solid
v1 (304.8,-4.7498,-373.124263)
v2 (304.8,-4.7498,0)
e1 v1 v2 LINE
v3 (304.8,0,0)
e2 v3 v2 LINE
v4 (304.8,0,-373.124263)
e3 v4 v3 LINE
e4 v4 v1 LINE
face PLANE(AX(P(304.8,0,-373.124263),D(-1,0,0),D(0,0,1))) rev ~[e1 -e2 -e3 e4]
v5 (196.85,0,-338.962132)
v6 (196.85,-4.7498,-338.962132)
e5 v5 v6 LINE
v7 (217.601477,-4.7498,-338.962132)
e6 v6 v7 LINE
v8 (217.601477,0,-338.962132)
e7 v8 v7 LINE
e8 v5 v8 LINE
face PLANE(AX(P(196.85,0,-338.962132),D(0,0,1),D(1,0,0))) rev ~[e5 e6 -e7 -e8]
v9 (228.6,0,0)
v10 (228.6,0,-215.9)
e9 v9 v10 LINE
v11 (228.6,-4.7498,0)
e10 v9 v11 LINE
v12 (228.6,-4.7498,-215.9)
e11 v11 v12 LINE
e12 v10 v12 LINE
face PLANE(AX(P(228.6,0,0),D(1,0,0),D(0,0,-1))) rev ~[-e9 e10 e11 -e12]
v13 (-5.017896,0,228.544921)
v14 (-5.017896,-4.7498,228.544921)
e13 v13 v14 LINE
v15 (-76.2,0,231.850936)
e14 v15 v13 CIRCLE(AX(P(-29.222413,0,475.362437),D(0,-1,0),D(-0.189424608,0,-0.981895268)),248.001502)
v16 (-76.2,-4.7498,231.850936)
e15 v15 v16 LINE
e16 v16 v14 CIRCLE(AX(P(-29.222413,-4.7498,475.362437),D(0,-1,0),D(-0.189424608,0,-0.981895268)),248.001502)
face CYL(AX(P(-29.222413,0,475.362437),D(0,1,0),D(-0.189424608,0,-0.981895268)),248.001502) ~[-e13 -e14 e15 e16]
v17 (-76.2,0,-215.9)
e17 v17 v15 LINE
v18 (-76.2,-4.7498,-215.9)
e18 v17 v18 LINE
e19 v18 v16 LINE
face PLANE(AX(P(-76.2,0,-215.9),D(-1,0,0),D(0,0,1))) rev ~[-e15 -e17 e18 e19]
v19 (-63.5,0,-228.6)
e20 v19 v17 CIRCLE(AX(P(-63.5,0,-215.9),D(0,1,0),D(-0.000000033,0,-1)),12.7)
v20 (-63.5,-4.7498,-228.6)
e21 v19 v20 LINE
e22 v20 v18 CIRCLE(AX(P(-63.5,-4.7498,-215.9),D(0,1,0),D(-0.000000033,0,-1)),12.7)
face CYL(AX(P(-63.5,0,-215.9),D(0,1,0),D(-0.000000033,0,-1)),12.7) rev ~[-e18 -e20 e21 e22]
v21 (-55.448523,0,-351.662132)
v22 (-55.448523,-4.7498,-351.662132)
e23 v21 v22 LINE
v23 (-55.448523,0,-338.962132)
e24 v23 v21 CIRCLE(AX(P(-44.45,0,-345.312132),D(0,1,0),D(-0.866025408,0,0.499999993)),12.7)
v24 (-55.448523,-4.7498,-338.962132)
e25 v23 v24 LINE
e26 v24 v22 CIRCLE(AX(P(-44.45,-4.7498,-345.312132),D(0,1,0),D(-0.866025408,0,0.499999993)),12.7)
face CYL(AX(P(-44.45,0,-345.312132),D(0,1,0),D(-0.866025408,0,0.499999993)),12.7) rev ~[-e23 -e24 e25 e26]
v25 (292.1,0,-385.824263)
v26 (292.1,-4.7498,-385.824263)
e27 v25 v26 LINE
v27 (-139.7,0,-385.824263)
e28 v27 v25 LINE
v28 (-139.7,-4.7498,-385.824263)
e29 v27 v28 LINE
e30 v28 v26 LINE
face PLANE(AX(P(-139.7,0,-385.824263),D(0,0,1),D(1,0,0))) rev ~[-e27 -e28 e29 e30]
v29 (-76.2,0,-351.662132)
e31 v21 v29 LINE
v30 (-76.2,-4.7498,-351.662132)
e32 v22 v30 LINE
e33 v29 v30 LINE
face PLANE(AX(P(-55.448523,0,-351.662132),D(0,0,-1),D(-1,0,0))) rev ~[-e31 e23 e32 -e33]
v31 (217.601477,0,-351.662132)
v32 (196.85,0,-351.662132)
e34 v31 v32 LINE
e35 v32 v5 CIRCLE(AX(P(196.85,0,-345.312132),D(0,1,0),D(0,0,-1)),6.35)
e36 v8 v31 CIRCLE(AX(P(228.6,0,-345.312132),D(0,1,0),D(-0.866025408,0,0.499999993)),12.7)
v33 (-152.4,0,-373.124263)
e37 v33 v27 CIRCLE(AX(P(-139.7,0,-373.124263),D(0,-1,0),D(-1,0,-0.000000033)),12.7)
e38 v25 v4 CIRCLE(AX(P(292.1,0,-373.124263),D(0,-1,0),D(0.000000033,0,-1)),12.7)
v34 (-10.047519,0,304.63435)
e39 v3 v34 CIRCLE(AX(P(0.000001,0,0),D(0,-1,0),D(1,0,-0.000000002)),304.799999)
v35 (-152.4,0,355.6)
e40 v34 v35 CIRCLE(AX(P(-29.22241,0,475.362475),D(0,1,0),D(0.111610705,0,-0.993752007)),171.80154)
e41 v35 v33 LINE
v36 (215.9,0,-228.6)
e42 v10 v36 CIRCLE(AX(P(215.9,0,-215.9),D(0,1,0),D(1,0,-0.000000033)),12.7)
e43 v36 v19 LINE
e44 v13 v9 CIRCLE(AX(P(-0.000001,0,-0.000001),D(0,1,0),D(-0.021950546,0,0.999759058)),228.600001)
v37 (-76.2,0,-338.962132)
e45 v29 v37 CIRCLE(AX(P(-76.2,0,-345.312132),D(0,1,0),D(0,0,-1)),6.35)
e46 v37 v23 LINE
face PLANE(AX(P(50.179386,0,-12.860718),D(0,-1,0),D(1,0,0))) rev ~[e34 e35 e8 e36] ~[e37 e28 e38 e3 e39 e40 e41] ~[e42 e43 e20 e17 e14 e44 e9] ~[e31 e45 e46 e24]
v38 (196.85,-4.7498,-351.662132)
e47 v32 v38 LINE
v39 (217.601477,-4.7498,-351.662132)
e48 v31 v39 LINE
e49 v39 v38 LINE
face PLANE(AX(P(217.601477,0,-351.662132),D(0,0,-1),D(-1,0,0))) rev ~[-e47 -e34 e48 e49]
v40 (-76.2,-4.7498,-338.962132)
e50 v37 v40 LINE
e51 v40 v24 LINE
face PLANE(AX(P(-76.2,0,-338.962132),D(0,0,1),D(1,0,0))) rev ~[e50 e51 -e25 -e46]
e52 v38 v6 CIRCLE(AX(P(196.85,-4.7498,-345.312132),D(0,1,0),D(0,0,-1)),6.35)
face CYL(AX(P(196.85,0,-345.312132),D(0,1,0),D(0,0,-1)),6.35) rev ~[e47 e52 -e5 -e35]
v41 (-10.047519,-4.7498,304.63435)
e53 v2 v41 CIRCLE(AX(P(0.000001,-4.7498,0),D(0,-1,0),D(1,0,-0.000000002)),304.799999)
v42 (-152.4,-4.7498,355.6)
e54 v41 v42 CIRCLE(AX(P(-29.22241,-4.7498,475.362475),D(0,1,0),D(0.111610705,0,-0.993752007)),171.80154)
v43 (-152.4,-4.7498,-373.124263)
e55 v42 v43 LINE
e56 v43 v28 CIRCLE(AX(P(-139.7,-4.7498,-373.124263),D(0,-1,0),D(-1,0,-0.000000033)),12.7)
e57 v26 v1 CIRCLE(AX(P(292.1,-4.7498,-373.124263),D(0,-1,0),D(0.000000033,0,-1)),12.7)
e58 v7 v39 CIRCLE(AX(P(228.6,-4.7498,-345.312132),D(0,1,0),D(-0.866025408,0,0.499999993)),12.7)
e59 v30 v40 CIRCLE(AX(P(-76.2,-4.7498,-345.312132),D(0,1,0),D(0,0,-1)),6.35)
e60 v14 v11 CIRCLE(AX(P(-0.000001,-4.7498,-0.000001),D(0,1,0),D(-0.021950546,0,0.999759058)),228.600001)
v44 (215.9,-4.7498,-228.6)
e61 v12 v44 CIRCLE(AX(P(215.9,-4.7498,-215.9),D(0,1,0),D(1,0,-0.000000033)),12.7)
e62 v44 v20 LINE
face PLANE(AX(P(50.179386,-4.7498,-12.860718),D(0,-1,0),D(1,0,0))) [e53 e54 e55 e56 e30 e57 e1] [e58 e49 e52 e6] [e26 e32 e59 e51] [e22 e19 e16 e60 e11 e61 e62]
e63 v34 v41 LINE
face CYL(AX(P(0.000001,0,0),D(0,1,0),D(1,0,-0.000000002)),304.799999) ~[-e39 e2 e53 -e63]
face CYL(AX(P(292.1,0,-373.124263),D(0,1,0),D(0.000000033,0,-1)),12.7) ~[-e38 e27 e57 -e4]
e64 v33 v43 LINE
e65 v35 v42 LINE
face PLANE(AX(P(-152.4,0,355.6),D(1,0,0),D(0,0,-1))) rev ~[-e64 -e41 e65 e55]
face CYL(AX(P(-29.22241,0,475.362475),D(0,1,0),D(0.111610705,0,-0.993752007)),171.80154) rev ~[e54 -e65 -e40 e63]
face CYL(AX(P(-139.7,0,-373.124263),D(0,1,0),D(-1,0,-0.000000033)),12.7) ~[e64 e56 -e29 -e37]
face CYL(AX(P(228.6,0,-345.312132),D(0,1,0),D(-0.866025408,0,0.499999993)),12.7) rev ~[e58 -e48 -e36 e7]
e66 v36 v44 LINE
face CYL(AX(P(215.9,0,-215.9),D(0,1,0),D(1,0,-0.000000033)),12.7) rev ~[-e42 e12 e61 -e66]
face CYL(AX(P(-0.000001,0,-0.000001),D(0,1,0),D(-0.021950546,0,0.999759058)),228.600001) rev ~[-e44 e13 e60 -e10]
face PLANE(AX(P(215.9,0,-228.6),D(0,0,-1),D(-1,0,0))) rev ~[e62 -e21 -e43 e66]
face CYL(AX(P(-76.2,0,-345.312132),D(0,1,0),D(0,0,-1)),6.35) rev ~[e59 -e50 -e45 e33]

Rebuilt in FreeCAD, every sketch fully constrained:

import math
import FreeCAD as App
import Part
import Sketcher

V = App.Vector
Q = App.Units.Quantity

doc = App.newDocument("Part")
body = doc.addObject("PartDesign::Body", "Body")

# Sketch on XZ plane
sketch1 = body.newObject("Sketcher::SketchObject", "Sketch")
sketch1.AttachmentSupport = (doc.getObject("XZ_Plane"), [""])
sketch1.MapMode = "FlatFace"
sketch1.addGeometry([
    Part.ArcOfCircle(Part.Circle(V(0, 0, 0), V(0, 0, 1), 305), math.radians(0), math.radians(92)),  # 0
    Part.ArcOfCircle(Part.Circle(V(-29, 475, 0), V(0, 0, 1), 172), math.radians(-136), math.radians(-84)),  # 1
    Part.LineSegment(V(-152, 356, 0), V(-152, -373, 0)),  # 2
    Part.ArcOfCircle(Part.Circle(V(-140, -373, 0), V(0, 0, 1), 13), math.radians(-180), math.radians(-90)),  # 3
    Part.LineSegment(V(-140, -386, 0), V(292, -386, 0)),  # 4
    Part.ArcOfCircle(Part.Circle(V(292, -373, 0), V(0, 0, 1), 13), math.radians(-90), math.radians(0)),  # 5
    Part.LineSegment(V(305, -373, 0), V(305, 0, 0)),  # 6
    Part.LineSegment(V(-76, -339, 0), V(-55, -339, 0)),  # 7
    Part.ArcOfCircle(Part.Circle(V(-44, -345, 0), V(0, 0, 1), 13), math.radians(-150), math.radians(150)),  # 8
    Part.LineSegment(V(-55, -352, 0), V(-76, -352, 0)),  # 9
    Part.ArcOfCircle(Part.Circle(V(-76, -345, 0), V(0, 0, 1), 6), math.radians(90), math.radians(270)),  # 10
    Part.LineSegment(V(197, -339, 0), V(218, -339, 0)),  # 11
    Part.ArcOfCircle(Part.Circle(V(229, -345, 0), V(0, 0, 1), 13), math.radians(-150), math.radians(150)),  # 12
    Part.LineSegment(V(218, -352, 0), V(197, -352, 0)),  # 13
    Part.ArcOfCircle(Part.Circle(V(197, -345, 0), V(0, 0, 1), 6), math.radians(90), math.radians(270)),  # 14
    Part.ArcOfCircle(Part.Circle(V(-29, 475, 0), V(0, 0, 1), 248), math.radians(-100.92), math.radians(-84.4)),  # 15
    Part.ArcOfCircle(Part.Circle(V(0, 0, 0), V(0, 0, 1), 229), math.radians(0), math.radians(91)),  # 16
    Part.LineSegment(V(229, 0, 0), V(229, -216, 0)),  # 17
    Part.ArcOfCircle(Part.Circle(V(216, -216, 0), V(0, 0, 1), 13), math.radians(-90), math.radians(0)),  # 18
    Part.LineSegment(V(216, -229, 0), V(-64, -229, 0)),  # 19
    Part.ArcOfCircle(Part.Circle(V(-63, -216, 0), V(0, 0, 1), 13), math.radians(-180), math.radians(-90)),  # 20
    Part.LineSegment(V(-76, -216, 0), V(-76, 232, 0)),  # 21
], False)
sketch1.addConstraint([
    Sketcher.Constraint("Coincident", 0, 2, 1, 2),
    Sketcher.Constraint("Coincident", 1, 1, 2, 1),
    Sketcher.Constraint("Tangent", 2, 2, 3, 1),
    Sketcher.Constraint("Tangent", 3, 2, 4, 1),
    Sketcher.Constraint("Tangent", 4, 2, 5, 1),
    Sketcher.Constraint("Tangent", 5, 2, 6, 1),
    Sketcher.Constraint("Tangent", 6, 2, 0, 1),
    Sketcher.Constraint("Coincident", 7, 2, 8, 2),
    Sketcher.Constraint("Coincident", 8, 1, 9, 1),
    Sketcher.Constraint("Tangent", 9, 2, 10, 2),
    Sketcher.Constraint("Tangent", 10, 1, 7, 1),
    Sketcher.Constraint("Coincident", 11, 2, 12, 2),
    Sketcher.Constraint("Coincident", 12, 1, 13, 1),
    Sketcher.Constraint("Tangent", 13, 2, 14, 2),
    Sketcher.Constraint("Tangent", 14, 1, 11, 1),
    Sketcher.Constraint("Coincident", 15, 2, 16, 2),
    Sketcher.Constraint("Tangent", 16, 1, 17, 1),
    Sketcher.Constraint("Tangent", 17, 2, 18, 2),
    Sketcher.Constraint("Tangent", 18, 1, 19, 1),
    Sketcher.Constraint("Tangent", 19, 2, 20, 2),
    Sketcher.Constraint("Tangent", 20, 1, 21, 1),
    Sketcher.Constraint("Coincident", 21, 2, 15, 1),
    Sketcher.Constraint("Vertical", 2),
    Sketcher.Constraint("Horizontal", 4),
    Sketcher.Constraint("Vertical", 6),
    Sketcher.Constraint("Horizontal", 7),
    Sketcher.Constraint("Horizontal", 9),
    Sketcher.Constraint("Horizontal", 11),
    Sketcher.Constraint("Horizontal", 13),
    Sketcher.Constraint("Vertical", 17),
    Sketcher.Constraint("Horizontal", 19),
    Sketcher.Constraint("Vertical", 21),
    Sketcher.Constraint("Coincident", 0, 3, -1, 1),
    Sketcher.Constraint("Coincident", 16, 3, -1, 1),
    Sketcher.Constraint("Equal", 3, 5),
    Sketcher.Constraint("Equal", 5, 8),
    Sketcher.Constraint("Equal", 8, 12),
    Sketcher.Constraint("Equal", 10, 14),
    Sketcher.Constraint("Equal", 12, 18),
    Sketcher.Constraint("Equal", 18, 20),
    Sketcher.Constraint("Horizontal", 8, 3, 10, 3),
    Sketcher.Constraint("Horizontal", 10, 3, 12, 3),
    Sketcher.Constraint("Horizontal", 12, 3, 14, 3),
    Sketcher.Constraint("Vertical", 12, 3, 16, 1),
    Sketcher.Constraint("Vertical", 10, 1, 20, 1),
    Sketcher.Constraint("Equal", 9, 11),
    Sketcher.Constraint("Radius", 0, Q("12 in")),
    Sketcher.Constraint("Radius", 16, Q("9 in")),
    Sketcher.Constraint("Radius", 3, Q("0.5 in")),
    Sketcher.Constraint("DistanceX", 4, 1, 4, 2, Q("17 in")),
    Sketcher.Constraint("DistanceX", 19, 2, 19, 1, Q("11 in")),
    Sketcher.Constraint("Radius", 10, Q("0.25 in")),
    Sketcher.Constraint("DistanceY", 17, 2, 17, 1, Q("8.5 in")),
    Sketcher.Constraint("DistanceY", -1, 1, 1, 1, Q("14 in")),
    Sketcher.Constraint("DistanceX", 8, 3, 14, 3, Q("9.5 in")),
    Sketcher.Constraint("Radius", 15, Q("248.001502 mm")),
    Sketcher.Constraint("Radius", 1, Q("171.80154 mm")),
    Sketcher.Constraint("DistanceY", 2, 2, 2, 1, Q("728.724263 mm")),
    Sketcher.Constraint("DistanceY", 21, 1, 21, 2, Q("447.750936 mm")),
    Sketcher.Constraint("DistanceX", 1, 3, -1, 1, Q("29.22241 mm")),
    Sketcher.Constraint("DistanceY", 8, 3, -1, 1, Q("345.312132 mm")),
    Sketcher.Constraint("DistanceY", -1, 1, 15, 2, Q("228.544921 mm")),
])
pad1 = body.newObject("PartDesign::Pad", "Pad")
pad1.Profile = sketch1
pad1.Length = Q("0.187 in")

doc.recompute()
